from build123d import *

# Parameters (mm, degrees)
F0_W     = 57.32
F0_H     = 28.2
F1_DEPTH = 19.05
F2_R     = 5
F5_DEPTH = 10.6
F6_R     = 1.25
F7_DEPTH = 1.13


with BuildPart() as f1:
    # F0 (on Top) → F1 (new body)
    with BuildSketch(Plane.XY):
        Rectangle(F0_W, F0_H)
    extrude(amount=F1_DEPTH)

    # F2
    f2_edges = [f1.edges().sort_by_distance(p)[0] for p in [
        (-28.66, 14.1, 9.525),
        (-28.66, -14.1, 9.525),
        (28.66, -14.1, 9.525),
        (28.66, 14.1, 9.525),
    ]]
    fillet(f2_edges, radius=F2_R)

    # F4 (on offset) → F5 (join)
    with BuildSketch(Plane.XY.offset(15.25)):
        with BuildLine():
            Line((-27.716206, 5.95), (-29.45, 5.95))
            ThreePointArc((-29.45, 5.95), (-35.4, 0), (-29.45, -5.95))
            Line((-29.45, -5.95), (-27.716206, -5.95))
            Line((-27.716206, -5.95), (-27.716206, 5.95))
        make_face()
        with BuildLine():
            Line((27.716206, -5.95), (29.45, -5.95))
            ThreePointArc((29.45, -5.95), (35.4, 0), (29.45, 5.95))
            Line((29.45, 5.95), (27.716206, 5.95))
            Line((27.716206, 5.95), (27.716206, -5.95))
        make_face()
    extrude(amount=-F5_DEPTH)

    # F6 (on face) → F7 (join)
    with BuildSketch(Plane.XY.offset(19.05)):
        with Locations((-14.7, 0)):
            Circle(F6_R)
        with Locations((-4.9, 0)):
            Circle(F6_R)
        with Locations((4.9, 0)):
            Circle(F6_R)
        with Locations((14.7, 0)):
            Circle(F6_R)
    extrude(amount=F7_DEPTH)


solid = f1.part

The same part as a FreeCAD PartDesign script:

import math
import FreeCAD as App
import Part
import Sketcher
from FreeCAD import Vector


def edges_at(feature, points):
    """Names of the edges that pass closest to the given points."""
    edges = feature.Shape.Edges
    near = lambda p: min(range(len(edges)), key=lambda i: edges[i].distToShape(Part.Vertex(*p))[0])
    return sorted({f"Edge{near(p) + 1}" for p in points})

doc = App.newDocument("Part")
body = doc.addObject("PartDesign::Body", "Body")

# Sketch on XY plane
sketch1 = doc.addObject("Sketcher::SketchObject", "Sketch")
body.addObject(sketch1)
sketch1.AttachmentSupport = (doc.XY_Plane, [""])
sketch1.MapMode = "FlatFace"
sketch1.addGeometry([
    Part.LineSegment(Vector(-29, 14, 0), Vector(-29, -14, 0)),
    Part.LineSegment(Vector(-29, -14, 0), Vector(29, -14, 0)),
    Part.LineSegment(Vector(29, -14, 0), Vector(29, 14, 0)),
    Part.LineSegment(Vector(29, 14, 0), Vector(-29, 14, 0)),
], False)
sketch1.addConstraint([
    Sketcher.Constraint("Coincident", 0, 2, 1, 1),
    Sketcher.Constraint("Coincident", 1, 2, 2, 1),
    Sketcher.Constraint("Coincident", 2, 2, 3, 1),
    Sketcher.Constraint("Coincident", 3, 2, 0, 1),
    Sketcher.Constraint("Vertical", 0),
    Sketcher.Constraint("Horizontal", 1),
    Sketcher.Constraint("Vertical", 2),
    Sketcher.Constraint("Horizontal", 3),
    Sketcher.Constraint("Symmetric", 0, 2, 2, 2, -1, 1),
    Sketcher.Constraint("DistanceY", 0, 2, 0, 1, 28.2),
    Sketcher.Constraint("DistanceX", 1, 1, 1, 2, 57.32),
])
pad1 = doc.addObject("PartDesign::Pad", "Pad")
body.addObject(pad1)
pad1.Profile = sketch1
pad1.Length = 19.05
doc.recompute()

fillet = doc.addObject("PartDesign::Fillet", "Fillet")
body.addObject(fillet)
fillet.Base = (pad1, edges_at(pad1, [
    (-28.66, 14.1, 9.525),
    (-28.66, -14.1, 9.525),
    (28.66, -14.1, 9.525),
    (28.66, 14.1, 9.525),
]))
fillet.Radius = 5

# Sketch on XY plane
sketch2 = doc.addObject("Sketcher::SketchObject", "Sketch001")
body.addObject(sketch2)
sketch2.AttachmentSupport = (doc.XY_Plane, [""])
sketch2.MapMode = "FlatFace"
sketch2.AttachmentOffset = App.Placement(Vector(0, 0, 15.25), App.Rotation())
sketch2.addGeometry([
    Part.LineSegment(Vector(-27.7, 6, 0), Vector(-29.4, 6, 0)),  # 0
    Part.ArcOfCircle(Part.Circle(Vector(-29.4, 0, 0), Vector(0, 0, 1), 6), math.radians(90), math.radians(270)),  # 1
    Part.LineSegment(Vector(-29.4, -6, 0), Vector(-27.7, -6, 0)),  # 2
    Part.LineSegment(Vector(-27.7, -6, 0), Vector(-27.7, 6, 0)),  # 3
    Part.LineSegment(Vector(27.7, -6, 0), Vector(29.4, -6, 0)),  # 4
    Part.ArcOfCircle(Part.Circle(Vector(29.4, 0, 0), Vector(0, 0, 1), 6), math.radians(-90), math.radians(90)),  # 5
    Part.LineSegment(Vector(29.4, 6, 0), Vector(27.7, 6, 0)),  # 6
    Part.LineSegment(Vector(27.7, 6, 0), Vector(27.7, -6, 0)),  # 7
], False)
sketch2.addConstraint([
    Sketcher.Constraint("Tangent", 0, 2, 1, 1),
    Sketcher.Constraint("Tangent", 1, 2, 2, 1),
    Sketcher.Constraint("Coincident", 2, 2, 3, 1),
    Sketcher.Constraint("Coincident", 3, 2, 0, 1),
    Sketcher.Constraint("Tangent", 4, 2, 5, 1),
    Sketcher.Constraint("Tangent", 5, 2, 6, 1),
    Sketcher.Constraint("Coincident", 6, 2, 7, 1),
    Sketcher.Constraint("Coincident", 7, 2, 4, 1),
    Sketcher.Constraint("Horizontal", 0),
    Sketcher.Constraint("Horizontal", 2),
    Sketcher.Constraint("Vertical", 3),
    Sketcher.Constraint("Horizontal", 4),
    Sketcher.Constraint("Horizontal", 6),
    Sketcher.Constraint("Vertical", 7),
    Sketcher.Constraint("Equal", 1, 5),
    Sketcher.Constraint("Symmetric", 1, 3, 5, 3, -1, 1),
    Sketcher.Constraint("Symmetric", 3, 2, 6, 2, -2),
    Sketcher.Constraint("Radius", 1, 5.95),
    Sketcher.Constraint("DistanceX", 1, 3, 5, 3, 58.9),
    Sketcher.Constraint("DistanceX", 0, 2, 0, 1, 1.733794),
])
pad2 = doc.addObject("PartDesign::Pad", "Pad001")
body.addObject(pad2)
pad2.Profile = sketch2
pad2.Length = 10.6
pad2.Reversed = True

# Sketch on XY plane
sketch3 = doc.addObject("Sketcher::SketchObject", "Sketch002")
body.addObject(sketch3)
sketch3.AttachmentSupport = (doc.XY_Plane, [""])
sketch3.MapMode = "FlatFace"
sketch3.AttachmentOffset = App.Placement(Vector(0, 0, 19.05), App.Rotation())
sketch3.addGeometry([
    Part.Circle(Vector(-14.7, 0, 0), Vector(0, 0, 1), 1.2),
    Part.Circle(Vector(-4.9, 0, 0), Vector(0, 0, 1), 1.2),
    Part.Circle(Vector(4.9, 0, 0), Vector(0, 0, 1), 1.2),
    Part.Circle(Vector(14.7, 0, 0), Vector(0, 0, 1), 1.2),
], False)
sketch3.addConstraint([
    Sketcher.Constraint("Equal", 0, 1),
    Sketcher.Constraint("Equal", 1, 2),
    Sketcher.Constraint("Equal", 2, 3),
    Sketcher.Constraint("Symmetric", 1, 3, 2, 3, -1, 1),
    Sketcher.Constraint("Symmetric", 0, 3, 3, 3, -1, 1),
    Sketcher.Constraint("PointOnObject", 0, 3, -1),
    Sketcher.Constraint("PointOnObject", 1, 3, -1),
    Sketcher.Constraint("Diameter", 0, 2.5),
    Sketcher.Constraint("DistanceX", 0, 3, -1, 1, 14.7),
    Sketcher.Constraint("DistanceX", 1, 3, -1, 1, 4.9),
])
pad3 = doc.addObject("PartDesign::Pad", "Pad002")
body.addObject(pad3)
pad3.Profile = sketch3
pad3.Length = 1.13

doc.recompute()
